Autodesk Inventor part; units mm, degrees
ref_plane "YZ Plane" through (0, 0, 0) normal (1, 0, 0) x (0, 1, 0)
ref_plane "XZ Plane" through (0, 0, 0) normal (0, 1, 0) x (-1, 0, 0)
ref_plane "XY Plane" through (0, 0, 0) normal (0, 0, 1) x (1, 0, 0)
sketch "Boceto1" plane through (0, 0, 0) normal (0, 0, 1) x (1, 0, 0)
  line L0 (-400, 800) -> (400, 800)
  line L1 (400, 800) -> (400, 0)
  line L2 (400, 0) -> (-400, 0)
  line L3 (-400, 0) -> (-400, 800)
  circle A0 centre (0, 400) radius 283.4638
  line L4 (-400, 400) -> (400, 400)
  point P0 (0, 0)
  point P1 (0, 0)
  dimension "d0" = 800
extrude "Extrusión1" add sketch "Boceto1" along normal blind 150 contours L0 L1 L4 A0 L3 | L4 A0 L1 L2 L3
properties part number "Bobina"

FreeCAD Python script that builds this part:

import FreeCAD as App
import Part
import Sketcher
from FreeCAD import Vector


def add_polygon(sketch, points):
    """Adds a closed chain of lines whose ends are joined by coincident constraints."""
    first, n = sketch.GeometryCount, len(points)
    for a, b in zip(points, points[1:] + points[:1]):
        sketch.addGeometry(Part.LineSegment(App.Vector(*a, 0), App.Vector(*b, 0)), False)
    for i in range(n):
        sketch.addConstraint(Sketcher.Constraint("Coincident", first + i, 2, first + (i + 1) % n, 1))

doc = App.newDocument("Part")
body = doc.addObject("PartDesign::Body", "Body")

# Sketch on XY plane
sketch1 = body.newObject("Sketcher::SketchObject", "Sketch")
sketch1.AttachmentSupport = (doc.getObject("XY_Plane"), [""])
sketch1.MapMode = "FlatFace"
add_polygon(sketch1, [(400, 800), (-400, 800), (-400, 0), (400, 0)])  # lines 0-3
sketch1.addGeometry(Part.Circle(Vector(0, 400, 0), Vector(0, 0, 1), 283.4638), False)  # 4
sketch1.addConstraint([
    Sketcher.Constraint("Horizontal", 0),
    Sketcher.Constraint("Vertical", 1),
    Sketcher.Constraint("Horizontal", 2),
    Sketcher.Constraint("Vertical", 3),
    Sketcher.Constraint("Symmetric", 1, 2, 2, 2, -1, 1),
    Sketcher.Constraint("PointOnObject", 4, 3, -2),
    Sketcher.Constraint("Equal", 2, 1),
    Sketcher.Constraint("DistanceX", 0, 2, 0, 1, 800.0),
    Sketcher.Constraint("DistanceY", -1, 1, 4, 3, 400.0),
    Sketcher.Constraint("Diameter", 4, 566.9276),
])
pad1 = body.newObject("PartDesign::Pad", "Pad")
pad1.Profile = sketch1
pad1.Length = 150

doc.recompute()
